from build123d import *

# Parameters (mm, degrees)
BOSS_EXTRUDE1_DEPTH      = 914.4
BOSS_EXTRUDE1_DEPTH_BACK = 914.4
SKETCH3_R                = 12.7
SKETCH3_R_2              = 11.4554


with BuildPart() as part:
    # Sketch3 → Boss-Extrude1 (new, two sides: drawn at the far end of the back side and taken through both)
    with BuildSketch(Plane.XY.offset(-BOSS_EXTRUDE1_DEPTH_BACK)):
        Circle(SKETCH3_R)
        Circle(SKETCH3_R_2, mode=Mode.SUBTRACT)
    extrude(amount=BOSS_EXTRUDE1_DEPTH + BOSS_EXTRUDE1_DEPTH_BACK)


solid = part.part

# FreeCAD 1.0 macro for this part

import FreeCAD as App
import Part
import Sketcher
Q = App.Units.Quantity

doc = App.newDocument("Part")
body = doc.addObject("PartDesign::Body", "Body")

# Sketch on XY plane
sketch1 = body.newObject("Sketcher::SketchObject", "Sketch")
sketch1.AttachmentSupport = (doc.getObject("XY_Plane"), [""])
sketch1.MapMode = "FlatFace"
sketch1.addGeometry(Part.Circle(App.Vector(0, 0, 0), App.Vector(0, 0, 1), 12.7), False)
sketch1.addGeometry(Part.Circle(App.Vector(0, 0, 0), App.Vector(0, 0, 1), 11.4554), False)
sketch1.addConstraint(Sketcher.Constraint("Coincident", 0, 3, -1, 1))
sketch1.addConstraint(Sketcher.Constraint("Coincident", 1, 3, -1, 1))
sketch1.addConstraint(Sketcher.Constraint("Diameter", 0, Q("1 in")))
sketch1.addConstraint(Sketcher.Constraint("Diameter", 1, Q("0.902 in")))
pad1 = body.newObject("PartDesign::Pad", "Pad")
pad1.Profile = sketch1
pad1.Type = "TwoLengths"
pad1.Length = Q("36 in")
pad1.Length2 = Q("36 in")

doc.recompute()
